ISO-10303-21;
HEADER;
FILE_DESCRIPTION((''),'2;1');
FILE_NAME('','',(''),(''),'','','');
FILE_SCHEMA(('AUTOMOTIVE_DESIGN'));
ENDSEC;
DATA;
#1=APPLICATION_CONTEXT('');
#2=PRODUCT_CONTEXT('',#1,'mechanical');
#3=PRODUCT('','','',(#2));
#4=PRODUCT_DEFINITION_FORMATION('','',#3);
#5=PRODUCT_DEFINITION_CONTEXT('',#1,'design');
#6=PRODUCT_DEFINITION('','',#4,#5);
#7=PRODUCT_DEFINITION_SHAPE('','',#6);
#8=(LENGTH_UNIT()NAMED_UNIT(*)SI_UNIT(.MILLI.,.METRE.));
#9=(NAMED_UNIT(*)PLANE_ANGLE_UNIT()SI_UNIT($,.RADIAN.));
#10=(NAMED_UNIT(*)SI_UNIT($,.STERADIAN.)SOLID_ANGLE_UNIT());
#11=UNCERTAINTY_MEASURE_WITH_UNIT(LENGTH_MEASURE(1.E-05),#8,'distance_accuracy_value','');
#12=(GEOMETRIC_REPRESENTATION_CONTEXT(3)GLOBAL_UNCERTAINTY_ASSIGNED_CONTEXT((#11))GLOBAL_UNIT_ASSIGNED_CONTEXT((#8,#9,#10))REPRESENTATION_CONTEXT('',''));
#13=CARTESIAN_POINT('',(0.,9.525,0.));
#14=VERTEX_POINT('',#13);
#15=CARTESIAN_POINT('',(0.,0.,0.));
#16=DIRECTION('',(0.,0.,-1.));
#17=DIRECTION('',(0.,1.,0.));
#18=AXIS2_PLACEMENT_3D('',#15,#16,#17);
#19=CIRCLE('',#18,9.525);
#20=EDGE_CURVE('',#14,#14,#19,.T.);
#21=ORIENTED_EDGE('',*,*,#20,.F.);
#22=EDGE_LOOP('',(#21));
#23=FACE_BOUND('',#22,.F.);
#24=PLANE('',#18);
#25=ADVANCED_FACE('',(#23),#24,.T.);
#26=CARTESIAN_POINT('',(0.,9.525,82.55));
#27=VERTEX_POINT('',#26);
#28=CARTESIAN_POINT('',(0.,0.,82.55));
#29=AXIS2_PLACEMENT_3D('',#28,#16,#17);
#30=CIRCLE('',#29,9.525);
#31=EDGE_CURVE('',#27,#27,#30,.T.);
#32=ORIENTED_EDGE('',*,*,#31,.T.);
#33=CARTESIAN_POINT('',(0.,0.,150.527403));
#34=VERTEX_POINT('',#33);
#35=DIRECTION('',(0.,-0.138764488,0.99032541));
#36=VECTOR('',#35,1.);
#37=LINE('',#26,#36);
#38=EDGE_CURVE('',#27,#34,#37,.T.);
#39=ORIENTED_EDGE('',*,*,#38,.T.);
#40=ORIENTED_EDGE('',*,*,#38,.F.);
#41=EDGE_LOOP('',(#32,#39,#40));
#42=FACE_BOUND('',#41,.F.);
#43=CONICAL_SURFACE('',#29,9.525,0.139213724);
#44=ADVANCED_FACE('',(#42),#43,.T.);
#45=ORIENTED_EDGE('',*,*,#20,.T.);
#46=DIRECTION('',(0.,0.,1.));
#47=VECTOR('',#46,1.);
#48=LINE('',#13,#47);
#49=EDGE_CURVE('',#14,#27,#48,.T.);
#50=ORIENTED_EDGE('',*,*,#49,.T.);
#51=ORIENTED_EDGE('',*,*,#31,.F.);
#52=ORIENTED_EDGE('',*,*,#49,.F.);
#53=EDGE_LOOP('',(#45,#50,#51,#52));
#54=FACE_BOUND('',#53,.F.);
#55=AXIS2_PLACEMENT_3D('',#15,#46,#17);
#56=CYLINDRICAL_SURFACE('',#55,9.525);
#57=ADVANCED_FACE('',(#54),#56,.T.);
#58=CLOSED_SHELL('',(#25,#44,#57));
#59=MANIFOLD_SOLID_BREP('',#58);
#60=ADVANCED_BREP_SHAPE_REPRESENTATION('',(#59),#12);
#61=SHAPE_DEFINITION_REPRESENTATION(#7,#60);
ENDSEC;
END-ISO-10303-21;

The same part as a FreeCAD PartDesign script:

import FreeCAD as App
import Part
import Sketcher
Q = App.Units.Quantity


def add_polygon(sketch, points):
    """Adds a closed chain of lines whose ends are joined by coincident constraints."""
    first, n = sketch.GeometryCount, len(points)
    for a, b in zip(points, points[1:] + points[:1]):
        sketch.addGeometry(Part.LineSegment(App.Vector(*a, 0), App.Vector(*b, 0)), False)
    for i in range(n):
        sketch.addConstraint(Sketcher.Constraint("Coincident", first + i, 2, first + (i + 1) % n, 1))

doc = App.newDocument("Part")
body = doc.addObject("PartDesign::Body", "Body")

sketch1 = doc.addObject("Sketcher::SketchObject", "Sketch")
body.addObject(sketch1)
sketch1.AttachmentSupport = (doc.YZ_Plane, [""])
sketch1.MapMode = "FlatFace"
add_polygon(sketch1, [(0, 151), (0, 0), (10, 0), (10, 83)])
sketch1.addConstraint([
    Sketcher.Constraint("Vertical", 0),
    Sketcher.Constraint("Horizontal", 1),
    Sketcher.Constraint("Vertical", 2),
    Sketcher.Constraint("Coincident", 0, 2, -1, 1),
    Sketcher.Constraint("DistanceY", 2, 1, 2, 2, Q("3.25 in")),
    Sketcher.Constraint("DistanceX", 1, 1, 1, 2, Q("0.375 in")),
    Sketcher.Constraint("Distance", 3, Q("68.641481 mm")),
])
revolution = doc.addObject("PartDesign::Revolution", "Revolution")
body.addObject(revolution)
revolution.Profile = sketch1
revolution.ReferenceAxis = (sketch1, ["V_Axis"])
revolution.Angle = 360

doc.recompute()
